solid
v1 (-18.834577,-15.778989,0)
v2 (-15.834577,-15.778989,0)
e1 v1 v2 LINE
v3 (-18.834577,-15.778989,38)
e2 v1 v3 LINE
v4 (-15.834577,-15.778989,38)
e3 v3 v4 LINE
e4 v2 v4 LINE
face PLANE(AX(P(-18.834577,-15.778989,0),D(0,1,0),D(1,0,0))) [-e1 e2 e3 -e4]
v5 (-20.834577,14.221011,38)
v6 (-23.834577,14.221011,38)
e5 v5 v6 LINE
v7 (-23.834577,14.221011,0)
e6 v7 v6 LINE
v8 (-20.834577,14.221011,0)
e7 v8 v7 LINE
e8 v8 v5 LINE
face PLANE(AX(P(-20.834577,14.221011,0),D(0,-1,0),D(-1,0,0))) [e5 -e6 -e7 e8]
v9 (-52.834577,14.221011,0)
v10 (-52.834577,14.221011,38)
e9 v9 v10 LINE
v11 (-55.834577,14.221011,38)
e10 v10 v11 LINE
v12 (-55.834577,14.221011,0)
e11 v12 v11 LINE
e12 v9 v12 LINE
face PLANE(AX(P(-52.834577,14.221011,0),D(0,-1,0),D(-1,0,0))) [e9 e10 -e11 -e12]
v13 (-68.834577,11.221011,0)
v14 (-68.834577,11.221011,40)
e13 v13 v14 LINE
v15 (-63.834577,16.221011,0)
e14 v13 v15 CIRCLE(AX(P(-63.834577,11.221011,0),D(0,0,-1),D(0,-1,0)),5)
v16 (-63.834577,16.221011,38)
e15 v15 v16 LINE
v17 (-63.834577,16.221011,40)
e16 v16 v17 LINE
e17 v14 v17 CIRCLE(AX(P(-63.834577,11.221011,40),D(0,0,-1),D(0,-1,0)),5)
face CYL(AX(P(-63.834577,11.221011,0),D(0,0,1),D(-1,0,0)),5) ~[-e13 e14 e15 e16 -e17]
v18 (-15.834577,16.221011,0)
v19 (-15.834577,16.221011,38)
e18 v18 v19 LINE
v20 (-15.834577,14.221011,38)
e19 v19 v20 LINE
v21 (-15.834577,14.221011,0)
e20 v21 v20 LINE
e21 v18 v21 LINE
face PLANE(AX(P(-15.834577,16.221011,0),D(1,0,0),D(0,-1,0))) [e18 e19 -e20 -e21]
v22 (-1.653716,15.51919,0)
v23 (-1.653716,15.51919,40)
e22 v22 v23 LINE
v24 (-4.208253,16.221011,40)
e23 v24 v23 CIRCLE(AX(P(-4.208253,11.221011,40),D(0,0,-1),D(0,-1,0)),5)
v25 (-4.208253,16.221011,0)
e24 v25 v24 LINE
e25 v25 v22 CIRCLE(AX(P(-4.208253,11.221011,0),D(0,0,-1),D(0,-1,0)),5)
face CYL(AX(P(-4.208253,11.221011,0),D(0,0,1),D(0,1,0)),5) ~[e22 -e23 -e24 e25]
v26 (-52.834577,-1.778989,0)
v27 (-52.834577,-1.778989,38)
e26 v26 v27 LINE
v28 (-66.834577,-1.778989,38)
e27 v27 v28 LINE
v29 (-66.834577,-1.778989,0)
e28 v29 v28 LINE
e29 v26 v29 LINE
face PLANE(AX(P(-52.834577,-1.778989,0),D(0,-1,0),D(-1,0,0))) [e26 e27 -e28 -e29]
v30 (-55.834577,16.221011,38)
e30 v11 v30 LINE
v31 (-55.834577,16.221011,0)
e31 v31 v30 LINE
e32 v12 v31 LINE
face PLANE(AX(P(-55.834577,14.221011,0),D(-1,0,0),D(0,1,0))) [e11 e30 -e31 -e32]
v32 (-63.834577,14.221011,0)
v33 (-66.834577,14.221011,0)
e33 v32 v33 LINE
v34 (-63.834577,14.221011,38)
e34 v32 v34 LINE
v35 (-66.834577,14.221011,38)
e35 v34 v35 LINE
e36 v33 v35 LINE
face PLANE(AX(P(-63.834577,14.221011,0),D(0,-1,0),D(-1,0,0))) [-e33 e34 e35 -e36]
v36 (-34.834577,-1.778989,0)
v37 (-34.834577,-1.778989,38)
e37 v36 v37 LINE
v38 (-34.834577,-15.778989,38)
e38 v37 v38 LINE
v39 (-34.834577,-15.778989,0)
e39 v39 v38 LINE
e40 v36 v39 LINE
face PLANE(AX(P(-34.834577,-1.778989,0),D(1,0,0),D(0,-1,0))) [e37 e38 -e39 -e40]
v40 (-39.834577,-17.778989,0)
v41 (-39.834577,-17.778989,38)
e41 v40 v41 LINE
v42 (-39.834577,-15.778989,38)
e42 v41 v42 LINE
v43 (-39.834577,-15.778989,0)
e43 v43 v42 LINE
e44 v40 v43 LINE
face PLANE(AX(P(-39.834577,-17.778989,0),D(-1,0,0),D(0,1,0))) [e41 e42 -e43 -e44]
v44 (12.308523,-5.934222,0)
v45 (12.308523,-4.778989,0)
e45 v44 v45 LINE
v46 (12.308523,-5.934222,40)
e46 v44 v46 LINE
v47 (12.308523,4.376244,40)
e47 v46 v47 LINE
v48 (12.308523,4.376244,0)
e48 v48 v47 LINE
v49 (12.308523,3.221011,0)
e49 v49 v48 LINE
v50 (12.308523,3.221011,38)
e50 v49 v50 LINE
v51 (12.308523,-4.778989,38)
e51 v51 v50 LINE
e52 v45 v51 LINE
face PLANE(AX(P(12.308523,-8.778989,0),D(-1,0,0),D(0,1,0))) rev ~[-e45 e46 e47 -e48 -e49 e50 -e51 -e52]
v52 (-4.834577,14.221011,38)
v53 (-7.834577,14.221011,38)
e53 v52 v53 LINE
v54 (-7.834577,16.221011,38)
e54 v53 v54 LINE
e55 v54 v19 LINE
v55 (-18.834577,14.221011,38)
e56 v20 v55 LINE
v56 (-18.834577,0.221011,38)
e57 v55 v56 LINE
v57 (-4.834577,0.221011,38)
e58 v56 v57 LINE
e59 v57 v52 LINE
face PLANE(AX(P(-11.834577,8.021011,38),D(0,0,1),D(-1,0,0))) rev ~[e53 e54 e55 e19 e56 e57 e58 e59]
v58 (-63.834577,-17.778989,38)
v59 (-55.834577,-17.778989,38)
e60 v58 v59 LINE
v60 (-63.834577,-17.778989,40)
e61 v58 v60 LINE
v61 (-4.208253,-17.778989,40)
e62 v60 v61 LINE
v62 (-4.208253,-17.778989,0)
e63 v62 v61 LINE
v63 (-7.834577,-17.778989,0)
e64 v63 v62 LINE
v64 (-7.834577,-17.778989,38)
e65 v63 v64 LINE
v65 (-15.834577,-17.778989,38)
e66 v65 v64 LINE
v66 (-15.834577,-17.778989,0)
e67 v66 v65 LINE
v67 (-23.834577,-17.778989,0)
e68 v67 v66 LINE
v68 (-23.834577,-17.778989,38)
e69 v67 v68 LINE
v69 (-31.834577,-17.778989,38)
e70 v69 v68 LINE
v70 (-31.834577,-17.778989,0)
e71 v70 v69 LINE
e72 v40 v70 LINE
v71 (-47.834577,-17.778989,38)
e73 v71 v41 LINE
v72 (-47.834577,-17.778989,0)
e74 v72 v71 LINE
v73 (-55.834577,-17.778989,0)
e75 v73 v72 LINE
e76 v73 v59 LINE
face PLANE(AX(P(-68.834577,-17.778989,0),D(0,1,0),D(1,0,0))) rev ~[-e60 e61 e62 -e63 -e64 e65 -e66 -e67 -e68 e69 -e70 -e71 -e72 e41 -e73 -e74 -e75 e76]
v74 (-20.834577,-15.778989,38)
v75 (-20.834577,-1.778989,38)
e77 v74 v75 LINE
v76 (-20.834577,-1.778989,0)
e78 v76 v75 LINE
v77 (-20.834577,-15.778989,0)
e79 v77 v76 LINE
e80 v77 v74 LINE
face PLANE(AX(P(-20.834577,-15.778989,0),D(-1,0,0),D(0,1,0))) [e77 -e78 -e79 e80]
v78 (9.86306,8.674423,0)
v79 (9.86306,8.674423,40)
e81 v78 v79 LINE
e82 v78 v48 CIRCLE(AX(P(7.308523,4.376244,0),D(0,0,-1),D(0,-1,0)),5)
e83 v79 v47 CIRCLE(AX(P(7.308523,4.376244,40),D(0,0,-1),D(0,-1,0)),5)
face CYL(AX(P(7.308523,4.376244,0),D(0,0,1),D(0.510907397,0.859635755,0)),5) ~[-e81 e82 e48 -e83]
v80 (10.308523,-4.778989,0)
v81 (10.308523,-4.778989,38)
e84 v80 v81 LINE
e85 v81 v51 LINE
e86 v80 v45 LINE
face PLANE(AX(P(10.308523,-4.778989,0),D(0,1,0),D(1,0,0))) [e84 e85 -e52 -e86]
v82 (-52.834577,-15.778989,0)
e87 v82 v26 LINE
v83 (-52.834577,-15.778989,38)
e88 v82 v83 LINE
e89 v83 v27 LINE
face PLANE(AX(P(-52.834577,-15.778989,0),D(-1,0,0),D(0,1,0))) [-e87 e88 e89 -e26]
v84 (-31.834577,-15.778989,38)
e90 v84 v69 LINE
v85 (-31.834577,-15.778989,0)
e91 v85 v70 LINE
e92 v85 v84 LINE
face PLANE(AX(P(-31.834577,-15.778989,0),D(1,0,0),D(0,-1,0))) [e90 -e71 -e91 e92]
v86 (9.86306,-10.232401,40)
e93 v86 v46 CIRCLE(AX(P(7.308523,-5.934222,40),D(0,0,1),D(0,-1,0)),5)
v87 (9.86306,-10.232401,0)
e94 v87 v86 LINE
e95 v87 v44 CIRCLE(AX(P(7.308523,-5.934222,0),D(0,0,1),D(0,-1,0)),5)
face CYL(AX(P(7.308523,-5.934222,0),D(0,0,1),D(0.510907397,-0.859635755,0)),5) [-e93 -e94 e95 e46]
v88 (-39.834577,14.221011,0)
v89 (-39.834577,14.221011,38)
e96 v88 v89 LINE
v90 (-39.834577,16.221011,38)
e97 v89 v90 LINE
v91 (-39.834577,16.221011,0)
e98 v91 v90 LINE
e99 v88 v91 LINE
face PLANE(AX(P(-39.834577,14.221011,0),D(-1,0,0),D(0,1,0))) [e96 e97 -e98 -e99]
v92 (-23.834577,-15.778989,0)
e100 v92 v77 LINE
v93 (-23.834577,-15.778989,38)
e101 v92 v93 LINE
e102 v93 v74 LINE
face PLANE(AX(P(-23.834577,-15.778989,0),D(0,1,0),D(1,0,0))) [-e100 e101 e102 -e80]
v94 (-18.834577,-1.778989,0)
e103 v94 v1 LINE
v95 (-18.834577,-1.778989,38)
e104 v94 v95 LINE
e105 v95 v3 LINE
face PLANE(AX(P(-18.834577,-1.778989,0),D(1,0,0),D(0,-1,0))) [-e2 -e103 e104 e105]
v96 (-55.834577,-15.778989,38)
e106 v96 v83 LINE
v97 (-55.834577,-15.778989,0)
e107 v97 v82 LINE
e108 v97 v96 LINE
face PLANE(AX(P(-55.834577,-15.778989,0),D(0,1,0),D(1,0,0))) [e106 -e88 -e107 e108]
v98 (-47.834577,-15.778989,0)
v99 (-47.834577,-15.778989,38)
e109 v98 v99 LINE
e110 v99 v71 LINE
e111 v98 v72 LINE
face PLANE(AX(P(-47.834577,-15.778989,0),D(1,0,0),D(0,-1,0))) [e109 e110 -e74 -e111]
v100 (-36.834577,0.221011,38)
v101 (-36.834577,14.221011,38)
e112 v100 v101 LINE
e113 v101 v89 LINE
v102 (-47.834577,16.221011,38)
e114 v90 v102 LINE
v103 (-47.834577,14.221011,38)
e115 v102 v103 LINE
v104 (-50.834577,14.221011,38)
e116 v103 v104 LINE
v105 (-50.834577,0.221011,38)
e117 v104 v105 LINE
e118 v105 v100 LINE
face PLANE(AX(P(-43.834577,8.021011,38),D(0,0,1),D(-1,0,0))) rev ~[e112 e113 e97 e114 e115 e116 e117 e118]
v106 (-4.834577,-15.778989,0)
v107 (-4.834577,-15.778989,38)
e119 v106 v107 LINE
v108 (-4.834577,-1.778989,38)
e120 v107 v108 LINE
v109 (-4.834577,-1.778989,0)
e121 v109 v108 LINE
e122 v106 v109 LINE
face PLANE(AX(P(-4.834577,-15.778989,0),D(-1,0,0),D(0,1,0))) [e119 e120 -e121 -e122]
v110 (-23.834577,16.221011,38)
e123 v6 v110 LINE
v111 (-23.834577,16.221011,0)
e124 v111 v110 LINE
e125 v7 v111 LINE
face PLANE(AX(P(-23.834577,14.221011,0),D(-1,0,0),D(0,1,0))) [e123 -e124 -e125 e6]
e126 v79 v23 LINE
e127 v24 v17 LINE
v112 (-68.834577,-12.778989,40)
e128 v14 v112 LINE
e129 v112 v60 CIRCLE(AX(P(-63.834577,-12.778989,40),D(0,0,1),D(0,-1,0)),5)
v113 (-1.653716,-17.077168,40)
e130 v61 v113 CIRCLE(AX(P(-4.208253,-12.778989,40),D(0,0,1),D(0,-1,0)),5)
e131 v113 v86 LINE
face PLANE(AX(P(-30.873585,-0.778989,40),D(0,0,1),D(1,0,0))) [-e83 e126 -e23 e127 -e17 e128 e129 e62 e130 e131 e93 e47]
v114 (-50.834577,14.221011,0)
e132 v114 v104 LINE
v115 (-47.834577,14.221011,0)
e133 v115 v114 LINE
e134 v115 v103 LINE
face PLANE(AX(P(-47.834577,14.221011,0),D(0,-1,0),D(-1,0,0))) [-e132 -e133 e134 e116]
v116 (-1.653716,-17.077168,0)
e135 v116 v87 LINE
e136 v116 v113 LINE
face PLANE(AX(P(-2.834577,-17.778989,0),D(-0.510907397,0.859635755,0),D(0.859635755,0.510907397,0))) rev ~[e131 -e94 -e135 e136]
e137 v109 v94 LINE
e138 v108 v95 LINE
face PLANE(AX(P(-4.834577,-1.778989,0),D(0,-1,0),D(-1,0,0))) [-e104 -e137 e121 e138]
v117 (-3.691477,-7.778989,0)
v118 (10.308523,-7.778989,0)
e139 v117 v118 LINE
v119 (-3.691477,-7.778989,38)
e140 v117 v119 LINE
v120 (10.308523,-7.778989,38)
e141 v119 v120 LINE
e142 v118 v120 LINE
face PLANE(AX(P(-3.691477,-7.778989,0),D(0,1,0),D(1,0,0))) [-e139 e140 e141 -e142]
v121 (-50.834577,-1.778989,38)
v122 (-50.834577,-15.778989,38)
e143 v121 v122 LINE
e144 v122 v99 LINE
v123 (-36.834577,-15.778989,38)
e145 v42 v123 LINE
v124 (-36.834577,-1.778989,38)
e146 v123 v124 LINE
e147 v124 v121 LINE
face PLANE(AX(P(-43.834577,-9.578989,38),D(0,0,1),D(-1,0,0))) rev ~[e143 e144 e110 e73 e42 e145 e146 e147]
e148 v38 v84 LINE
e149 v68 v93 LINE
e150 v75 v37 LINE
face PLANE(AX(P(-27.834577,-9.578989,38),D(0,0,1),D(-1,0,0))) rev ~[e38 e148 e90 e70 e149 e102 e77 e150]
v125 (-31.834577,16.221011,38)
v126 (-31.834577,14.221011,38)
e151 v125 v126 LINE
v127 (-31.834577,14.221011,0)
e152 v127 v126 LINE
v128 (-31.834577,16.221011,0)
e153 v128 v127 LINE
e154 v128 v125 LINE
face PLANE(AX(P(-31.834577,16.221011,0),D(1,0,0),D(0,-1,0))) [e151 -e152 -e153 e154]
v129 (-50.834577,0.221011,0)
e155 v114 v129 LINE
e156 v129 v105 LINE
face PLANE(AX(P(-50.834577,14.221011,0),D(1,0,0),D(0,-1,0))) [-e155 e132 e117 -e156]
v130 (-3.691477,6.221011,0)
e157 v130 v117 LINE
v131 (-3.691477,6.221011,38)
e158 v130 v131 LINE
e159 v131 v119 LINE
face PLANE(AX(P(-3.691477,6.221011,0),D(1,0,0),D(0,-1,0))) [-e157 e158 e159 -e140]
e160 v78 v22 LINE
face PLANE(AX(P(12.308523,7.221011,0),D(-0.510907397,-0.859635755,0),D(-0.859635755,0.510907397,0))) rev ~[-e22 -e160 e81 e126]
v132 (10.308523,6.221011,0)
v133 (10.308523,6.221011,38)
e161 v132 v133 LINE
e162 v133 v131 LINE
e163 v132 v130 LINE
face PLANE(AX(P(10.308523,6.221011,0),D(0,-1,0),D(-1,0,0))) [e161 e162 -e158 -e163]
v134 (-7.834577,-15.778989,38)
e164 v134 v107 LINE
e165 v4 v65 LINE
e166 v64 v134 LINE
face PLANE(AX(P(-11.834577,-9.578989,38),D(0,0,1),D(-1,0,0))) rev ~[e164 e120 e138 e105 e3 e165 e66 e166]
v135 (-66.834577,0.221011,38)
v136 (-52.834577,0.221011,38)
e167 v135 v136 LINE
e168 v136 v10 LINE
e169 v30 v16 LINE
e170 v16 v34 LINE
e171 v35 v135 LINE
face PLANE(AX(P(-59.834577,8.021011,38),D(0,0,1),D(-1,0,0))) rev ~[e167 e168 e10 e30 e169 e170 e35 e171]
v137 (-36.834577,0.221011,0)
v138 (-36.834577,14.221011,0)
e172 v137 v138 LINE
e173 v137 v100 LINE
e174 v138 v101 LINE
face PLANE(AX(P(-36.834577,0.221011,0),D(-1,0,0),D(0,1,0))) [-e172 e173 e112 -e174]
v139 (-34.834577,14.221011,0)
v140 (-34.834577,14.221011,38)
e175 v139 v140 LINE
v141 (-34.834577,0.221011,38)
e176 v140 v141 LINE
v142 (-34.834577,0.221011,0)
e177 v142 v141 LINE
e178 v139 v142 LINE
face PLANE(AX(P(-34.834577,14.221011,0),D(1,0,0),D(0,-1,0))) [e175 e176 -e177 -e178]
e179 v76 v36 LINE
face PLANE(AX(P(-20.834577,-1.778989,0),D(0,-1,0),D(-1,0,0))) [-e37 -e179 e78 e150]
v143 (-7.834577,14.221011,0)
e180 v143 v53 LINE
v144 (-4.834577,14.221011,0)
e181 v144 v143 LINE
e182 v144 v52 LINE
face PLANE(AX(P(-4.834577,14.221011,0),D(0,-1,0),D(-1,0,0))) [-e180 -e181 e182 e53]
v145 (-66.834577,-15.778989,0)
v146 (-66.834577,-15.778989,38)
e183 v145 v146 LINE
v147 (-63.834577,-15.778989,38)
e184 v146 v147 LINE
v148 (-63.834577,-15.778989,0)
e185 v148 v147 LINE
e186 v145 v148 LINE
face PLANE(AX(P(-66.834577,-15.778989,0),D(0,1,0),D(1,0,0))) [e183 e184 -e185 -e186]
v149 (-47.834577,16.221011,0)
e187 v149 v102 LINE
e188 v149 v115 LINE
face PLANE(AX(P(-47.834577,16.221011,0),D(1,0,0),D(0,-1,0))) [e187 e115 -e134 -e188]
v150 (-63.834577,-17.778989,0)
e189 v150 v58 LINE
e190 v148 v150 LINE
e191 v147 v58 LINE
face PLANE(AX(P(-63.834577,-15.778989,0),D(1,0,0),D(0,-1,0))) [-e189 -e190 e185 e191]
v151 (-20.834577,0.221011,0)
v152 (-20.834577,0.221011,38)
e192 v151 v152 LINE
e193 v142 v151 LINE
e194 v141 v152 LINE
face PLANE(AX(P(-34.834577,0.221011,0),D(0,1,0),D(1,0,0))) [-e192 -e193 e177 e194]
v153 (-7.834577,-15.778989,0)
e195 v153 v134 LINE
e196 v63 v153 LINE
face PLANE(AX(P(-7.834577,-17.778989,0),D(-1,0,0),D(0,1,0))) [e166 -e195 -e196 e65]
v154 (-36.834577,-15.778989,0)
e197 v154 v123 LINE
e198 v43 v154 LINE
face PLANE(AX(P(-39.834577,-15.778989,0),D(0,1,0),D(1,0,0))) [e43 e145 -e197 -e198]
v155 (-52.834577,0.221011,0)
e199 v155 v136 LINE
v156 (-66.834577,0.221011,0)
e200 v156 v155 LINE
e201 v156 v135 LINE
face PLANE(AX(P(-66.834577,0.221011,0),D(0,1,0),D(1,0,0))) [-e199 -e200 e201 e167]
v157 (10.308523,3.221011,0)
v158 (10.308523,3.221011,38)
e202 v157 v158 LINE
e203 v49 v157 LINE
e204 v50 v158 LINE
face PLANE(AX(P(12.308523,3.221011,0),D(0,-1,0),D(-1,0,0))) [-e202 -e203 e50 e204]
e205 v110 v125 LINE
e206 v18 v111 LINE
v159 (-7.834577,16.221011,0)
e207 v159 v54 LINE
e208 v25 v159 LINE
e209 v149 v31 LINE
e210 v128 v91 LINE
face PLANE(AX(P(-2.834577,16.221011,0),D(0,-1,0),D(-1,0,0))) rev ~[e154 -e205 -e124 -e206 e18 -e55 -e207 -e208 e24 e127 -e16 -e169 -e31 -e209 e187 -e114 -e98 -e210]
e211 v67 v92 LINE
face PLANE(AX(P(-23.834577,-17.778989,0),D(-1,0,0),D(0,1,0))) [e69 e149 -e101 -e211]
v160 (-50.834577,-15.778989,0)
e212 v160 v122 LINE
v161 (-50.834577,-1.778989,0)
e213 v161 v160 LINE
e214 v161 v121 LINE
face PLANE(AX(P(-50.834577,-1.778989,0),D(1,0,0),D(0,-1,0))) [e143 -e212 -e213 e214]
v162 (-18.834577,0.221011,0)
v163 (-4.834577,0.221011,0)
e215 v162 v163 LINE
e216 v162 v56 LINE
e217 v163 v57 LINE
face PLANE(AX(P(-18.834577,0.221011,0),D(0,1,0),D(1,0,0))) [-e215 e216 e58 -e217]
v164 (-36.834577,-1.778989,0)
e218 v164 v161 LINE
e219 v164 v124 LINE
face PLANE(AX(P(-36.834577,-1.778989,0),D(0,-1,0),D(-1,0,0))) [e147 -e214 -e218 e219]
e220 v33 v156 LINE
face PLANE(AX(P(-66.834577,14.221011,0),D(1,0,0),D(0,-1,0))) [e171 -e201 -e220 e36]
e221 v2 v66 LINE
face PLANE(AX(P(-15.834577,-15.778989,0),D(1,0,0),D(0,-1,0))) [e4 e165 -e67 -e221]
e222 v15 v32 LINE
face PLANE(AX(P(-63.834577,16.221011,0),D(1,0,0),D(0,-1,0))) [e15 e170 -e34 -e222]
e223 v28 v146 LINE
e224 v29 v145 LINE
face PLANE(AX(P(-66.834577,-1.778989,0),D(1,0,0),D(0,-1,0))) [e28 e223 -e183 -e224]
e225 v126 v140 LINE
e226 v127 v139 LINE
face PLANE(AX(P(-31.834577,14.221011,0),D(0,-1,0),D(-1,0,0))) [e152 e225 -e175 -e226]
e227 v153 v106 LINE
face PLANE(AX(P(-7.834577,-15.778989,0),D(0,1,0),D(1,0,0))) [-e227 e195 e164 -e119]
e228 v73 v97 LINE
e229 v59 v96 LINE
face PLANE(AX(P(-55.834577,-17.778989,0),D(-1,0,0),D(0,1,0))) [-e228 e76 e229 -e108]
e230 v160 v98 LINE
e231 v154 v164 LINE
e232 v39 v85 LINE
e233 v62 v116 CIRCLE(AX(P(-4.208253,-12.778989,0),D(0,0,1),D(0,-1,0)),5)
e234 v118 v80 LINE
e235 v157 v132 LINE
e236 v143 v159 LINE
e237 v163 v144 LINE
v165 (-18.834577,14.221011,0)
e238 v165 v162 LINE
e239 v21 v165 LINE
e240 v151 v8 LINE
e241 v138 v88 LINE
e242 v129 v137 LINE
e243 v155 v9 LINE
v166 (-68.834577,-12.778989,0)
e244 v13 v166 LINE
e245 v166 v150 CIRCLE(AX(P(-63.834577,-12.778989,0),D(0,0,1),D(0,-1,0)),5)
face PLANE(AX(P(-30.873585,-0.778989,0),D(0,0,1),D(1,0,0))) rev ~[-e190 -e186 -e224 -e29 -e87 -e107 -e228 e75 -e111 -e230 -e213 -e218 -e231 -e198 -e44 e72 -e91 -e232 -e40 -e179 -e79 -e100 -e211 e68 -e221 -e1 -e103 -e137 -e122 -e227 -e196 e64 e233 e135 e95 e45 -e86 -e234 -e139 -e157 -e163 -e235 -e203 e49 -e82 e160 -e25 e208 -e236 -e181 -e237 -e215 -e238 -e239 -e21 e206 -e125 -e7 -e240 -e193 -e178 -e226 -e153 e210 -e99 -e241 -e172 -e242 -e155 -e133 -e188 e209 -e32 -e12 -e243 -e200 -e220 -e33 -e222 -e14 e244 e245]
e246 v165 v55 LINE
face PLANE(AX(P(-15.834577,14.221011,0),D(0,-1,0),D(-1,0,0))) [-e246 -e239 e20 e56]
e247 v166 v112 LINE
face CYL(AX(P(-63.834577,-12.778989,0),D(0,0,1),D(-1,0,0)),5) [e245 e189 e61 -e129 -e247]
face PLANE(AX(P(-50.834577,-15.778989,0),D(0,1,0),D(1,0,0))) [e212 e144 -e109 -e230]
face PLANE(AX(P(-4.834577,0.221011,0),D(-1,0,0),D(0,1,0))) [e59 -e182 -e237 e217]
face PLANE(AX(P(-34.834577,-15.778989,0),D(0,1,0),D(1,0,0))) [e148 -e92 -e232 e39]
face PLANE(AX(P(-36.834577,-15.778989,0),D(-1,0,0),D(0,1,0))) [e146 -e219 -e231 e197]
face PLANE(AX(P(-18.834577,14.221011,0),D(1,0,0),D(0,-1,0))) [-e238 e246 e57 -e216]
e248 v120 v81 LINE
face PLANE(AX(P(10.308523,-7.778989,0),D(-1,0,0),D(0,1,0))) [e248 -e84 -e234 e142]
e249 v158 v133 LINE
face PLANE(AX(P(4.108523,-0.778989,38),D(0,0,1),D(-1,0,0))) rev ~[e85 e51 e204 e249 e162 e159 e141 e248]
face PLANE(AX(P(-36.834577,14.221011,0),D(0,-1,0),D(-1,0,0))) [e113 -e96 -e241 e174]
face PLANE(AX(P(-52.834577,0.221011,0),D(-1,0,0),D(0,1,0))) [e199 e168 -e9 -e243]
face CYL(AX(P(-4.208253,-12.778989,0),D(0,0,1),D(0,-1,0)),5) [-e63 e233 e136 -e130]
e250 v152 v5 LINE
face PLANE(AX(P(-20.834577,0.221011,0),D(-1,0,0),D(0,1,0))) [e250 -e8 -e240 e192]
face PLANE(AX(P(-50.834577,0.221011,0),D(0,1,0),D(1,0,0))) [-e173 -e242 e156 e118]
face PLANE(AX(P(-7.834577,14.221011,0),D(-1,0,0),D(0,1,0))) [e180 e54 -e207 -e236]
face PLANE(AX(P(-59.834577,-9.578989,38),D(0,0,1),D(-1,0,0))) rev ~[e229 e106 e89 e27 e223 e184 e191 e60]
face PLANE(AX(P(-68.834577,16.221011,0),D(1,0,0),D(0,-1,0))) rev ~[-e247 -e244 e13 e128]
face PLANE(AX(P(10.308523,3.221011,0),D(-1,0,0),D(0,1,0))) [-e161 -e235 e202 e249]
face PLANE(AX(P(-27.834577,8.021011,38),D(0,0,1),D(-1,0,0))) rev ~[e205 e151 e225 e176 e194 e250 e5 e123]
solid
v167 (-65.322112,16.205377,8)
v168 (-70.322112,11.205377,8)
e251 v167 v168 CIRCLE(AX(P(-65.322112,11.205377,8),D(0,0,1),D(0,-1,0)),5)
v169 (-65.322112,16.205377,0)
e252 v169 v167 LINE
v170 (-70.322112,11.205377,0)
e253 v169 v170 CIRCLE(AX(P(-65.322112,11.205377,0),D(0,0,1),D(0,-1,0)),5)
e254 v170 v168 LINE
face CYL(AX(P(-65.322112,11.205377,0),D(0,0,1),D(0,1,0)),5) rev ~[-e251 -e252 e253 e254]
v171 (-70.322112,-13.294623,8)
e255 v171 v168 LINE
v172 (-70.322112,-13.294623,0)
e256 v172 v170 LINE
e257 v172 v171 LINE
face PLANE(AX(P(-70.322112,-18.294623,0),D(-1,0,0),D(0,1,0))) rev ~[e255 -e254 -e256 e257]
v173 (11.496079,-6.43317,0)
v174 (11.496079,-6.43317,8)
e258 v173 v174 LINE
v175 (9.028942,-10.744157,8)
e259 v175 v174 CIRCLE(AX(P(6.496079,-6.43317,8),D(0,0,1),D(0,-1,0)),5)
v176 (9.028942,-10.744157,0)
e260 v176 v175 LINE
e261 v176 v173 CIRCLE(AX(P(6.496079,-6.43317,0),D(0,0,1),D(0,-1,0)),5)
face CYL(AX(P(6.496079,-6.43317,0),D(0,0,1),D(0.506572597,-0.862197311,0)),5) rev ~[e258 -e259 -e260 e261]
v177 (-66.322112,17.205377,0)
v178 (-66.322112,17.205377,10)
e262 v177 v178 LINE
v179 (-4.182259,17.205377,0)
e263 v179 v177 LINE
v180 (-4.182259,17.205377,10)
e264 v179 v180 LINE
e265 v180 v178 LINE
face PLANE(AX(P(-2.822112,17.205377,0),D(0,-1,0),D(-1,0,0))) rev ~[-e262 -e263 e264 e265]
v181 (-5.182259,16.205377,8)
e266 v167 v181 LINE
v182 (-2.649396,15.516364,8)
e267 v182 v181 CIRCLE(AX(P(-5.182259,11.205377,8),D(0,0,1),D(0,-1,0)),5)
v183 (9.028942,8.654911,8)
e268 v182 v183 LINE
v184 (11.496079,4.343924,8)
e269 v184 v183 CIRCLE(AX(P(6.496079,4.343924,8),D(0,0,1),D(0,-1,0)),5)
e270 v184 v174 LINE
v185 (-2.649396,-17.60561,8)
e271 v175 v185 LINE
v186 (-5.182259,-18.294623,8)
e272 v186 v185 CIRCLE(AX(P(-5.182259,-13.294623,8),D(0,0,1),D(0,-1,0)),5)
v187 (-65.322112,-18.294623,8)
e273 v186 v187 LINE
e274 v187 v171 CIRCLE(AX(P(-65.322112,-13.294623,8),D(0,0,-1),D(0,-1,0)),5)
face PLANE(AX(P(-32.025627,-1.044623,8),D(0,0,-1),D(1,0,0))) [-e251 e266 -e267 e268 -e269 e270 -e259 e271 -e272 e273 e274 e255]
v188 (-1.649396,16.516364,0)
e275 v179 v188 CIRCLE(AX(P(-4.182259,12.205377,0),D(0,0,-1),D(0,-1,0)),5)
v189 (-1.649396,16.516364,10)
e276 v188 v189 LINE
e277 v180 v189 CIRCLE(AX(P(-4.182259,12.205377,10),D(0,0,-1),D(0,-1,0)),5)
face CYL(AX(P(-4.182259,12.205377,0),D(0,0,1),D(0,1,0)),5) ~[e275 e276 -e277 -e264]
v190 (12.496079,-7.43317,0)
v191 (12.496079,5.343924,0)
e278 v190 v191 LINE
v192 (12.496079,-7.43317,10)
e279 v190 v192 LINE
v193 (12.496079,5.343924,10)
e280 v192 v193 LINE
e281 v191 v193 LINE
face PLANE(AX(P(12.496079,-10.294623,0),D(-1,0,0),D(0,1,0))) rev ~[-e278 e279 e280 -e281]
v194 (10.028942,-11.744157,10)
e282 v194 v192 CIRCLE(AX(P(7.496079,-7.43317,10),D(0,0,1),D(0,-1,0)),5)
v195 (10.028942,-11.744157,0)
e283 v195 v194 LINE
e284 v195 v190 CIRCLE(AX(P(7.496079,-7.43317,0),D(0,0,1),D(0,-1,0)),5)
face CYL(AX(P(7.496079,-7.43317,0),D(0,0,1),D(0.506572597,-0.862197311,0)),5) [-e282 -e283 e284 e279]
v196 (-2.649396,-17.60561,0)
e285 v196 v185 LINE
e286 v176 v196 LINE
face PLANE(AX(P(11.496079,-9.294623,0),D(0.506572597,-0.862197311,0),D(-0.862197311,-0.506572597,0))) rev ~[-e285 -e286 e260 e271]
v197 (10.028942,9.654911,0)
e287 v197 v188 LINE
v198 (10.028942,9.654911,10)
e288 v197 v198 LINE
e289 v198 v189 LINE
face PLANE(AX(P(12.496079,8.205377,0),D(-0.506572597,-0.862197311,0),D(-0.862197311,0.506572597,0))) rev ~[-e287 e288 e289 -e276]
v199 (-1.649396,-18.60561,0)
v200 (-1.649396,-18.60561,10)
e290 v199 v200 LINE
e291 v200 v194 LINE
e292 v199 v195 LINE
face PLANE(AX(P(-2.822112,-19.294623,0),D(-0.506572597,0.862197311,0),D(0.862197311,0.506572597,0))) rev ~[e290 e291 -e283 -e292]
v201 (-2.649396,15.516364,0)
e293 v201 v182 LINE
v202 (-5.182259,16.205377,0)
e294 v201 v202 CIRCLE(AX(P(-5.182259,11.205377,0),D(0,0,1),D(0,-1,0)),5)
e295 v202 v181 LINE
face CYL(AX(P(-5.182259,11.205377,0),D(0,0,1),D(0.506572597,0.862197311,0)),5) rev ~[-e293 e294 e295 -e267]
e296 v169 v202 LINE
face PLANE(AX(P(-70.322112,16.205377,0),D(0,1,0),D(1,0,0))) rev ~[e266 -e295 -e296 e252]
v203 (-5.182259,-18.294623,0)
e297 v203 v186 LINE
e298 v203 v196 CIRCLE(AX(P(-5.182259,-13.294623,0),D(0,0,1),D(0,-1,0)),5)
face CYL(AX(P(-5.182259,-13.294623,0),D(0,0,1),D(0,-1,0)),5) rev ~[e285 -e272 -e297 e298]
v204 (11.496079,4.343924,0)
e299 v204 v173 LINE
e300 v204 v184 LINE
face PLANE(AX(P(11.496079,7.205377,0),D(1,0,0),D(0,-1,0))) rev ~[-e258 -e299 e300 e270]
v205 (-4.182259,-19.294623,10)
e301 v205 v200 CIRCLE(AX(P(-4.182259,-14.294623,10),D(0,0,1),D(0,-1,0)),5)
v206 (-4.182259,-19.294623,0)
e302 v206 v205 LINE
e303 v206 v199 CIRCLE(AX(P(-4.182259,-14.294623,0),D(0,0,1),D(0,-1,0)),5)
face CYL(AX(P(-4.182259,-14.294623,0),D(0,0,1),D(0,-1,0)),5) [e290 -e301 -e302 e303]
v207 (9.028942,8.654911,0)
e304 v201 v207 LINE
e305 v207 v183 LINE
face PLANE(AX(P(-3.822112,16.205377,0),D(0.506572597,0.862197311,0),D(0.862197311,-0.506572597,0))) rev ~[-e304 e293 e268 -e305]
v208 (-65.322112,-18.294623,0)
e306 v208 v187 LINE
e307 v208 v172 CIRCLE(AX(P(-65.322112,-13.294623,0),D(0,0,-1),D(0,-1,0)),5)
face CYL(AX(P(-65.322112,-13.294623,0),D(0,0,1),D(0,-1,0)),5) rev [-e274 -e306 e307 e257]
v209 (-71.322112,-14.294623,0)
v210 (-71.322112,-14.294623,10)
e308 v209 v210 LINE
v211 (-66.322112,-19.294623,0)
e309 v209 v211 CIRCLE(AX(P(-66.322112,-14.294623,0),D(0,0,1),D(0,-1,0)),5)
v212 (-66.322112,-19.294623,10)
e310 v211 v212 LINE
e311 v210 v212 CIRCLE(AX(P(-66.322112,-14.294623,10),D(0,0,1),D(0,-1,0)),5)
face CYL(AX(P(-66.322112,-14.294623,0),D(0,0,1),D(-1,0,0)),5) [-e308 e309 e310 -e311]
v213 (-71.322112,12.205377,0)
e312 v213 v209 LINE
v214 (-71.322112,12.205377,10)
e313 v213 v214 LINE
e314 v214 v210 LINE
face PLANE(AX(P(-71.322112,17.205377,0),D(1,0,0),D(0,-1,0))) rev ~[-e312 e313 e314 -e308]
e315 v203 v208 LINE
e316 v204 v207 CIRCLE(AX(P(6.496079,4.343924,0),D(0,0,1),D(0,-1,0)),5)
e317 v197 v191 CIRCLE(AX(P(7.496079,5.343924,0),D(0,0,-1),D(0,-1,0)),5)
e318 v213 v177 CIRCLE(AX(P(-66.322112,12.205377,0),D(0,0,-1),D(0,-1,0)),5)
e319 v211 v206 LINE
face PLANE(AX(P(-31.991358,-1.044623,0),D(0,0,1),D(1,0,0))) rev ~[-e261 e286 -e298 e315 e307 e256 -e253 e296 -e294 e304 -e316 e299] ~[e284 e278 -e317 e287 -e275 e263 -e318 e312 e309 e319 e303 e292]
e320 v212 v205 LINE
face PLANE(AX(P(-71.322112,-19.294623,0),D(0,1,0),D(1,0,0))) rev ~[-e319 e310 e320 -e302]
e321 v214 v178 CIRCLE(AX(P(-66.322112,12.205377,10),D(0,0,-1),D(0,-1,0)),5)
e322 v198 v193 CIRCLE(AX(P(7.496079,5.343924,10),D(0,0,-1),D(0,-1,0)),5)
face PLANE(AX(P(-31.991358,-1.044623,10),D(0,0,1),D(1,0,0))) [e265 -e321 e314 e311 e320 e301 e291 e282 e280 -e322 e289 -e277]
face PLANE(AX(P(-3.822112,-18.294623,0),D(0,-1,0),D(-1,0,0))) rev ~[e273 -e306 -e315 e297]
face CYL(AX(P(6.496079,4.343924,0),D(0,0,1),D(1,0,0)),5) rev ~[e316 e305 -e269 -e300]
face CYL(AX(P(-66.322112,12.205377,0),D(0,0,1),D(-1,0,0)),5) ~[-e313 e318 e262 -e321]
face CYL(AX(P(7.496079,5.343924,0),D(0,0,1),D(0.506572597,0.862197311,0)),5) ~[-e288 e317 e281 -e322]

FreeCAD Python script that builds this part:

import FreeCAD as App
import Part
import Sketcher
from FreeCAD import Vector
Q = App.Units.Quantity


def edges_at(feature, points):
    """Names of the edges that pass closest to the given points."""
    edges = feature.Shape.Edges
    near = lambda p: min(range(len(edges)), key=lambda i: edges[i].distToShape(Part.Vertex(*p))[0])
    return sorted({f"Edge{near(p) + 1}" for p in points})

doc = App.newDocument("Part")
body = doc.addObject("PartDesign::Body", "Body")

sketch1 = body.newObject("Sketcher::SketchObject", "Sketch")
sketch1.AttachmentSupport = (doc.getObject("XY_Plane"), [""])
sketch1.MapMode = "FlatFace"
sketch1.addGeometry([
    Part.LineSegment(Vector(-69, 16, 0), Vector(-69, -18, 0)),
    Part.LineSegment(Vector(-69, -18, 0), Vector(-3, -18, 0)),
    Part.LineSegment(Vector(-3, -18, 0), Vector(12, -9, 0)),
    Part.LineSegment(Vector(12, -9, 0), Vector(12, 7, 0)),
    Part.LineSegment(Vector(12, 7, 0), Vector(-3, 16, 0)),
    Part.LineSegment(Vector(-3, 16, 0), Vector(-69, 16, 0)),
], False)
sketch1.addConstraint([
    Sketcher.Constraint("Coincident", 0, 2, 1, 1),
    Sketcher.Constraint("Coincident", 1, 2, 2, 1),
    Sketcher.Constraint("Coincident", 2, 2, 3, 1),
    Sketcher.Constraint("Coincident", 3, 2, 4, 1),
    Sketcher.Constraint("Coincident", 4, 2, 5, 1),
    Sketcher.Constraint("Coincident", 5, 2, 0, 1),
    Sketcher.Constraint("Vertical", 0),
    Sketcher.Constraint("Horizontal", 1),
    Sketcher.Constraint("Vertical", 3),
    Sketcher.Constraint("Horizontal", 5),
    Sketcher.Constraint("Vertical", 1, 2, 4, 2),
    Sketcher.Constraint("Equal", 2, 4),
    Sketcher.Constraint("DistanceX", 1, 1, 1, 2, Q("66 mm")),
    Sketcher.Constraint("DistanceY", 0, 2, 0, 1, Q("34 mm")),
    Sketcher.Constraint("DistanceY", 3, 1, 3, 2, Q("16 mm")),
    Sketcher.Constraint("DistanceX", 1, 2, 2, 2, Q("15.1431 mm")),
    Sketcher.Constraint("DistanceY", 0, 2, -1, 1, Q("17.778989 mm")),
    Sketcher.Constraint("DistanceX", 0, 2, -1, 1, Q("68.834577 mm")),
])
pad1 = body.newObject("PartDesign::Pad", "Pad")
pad1.Profile = sketch1
pad1.Length = 40

sketch2 = body.newObject("Sketcher::SketchObject", "Sketch001")
sketch2.AttachmentSupport = (doc.getObject("XY_Plane"), [""])
sketch2.MapMode = "FlatFace"
sketch2.addGeometry([
    Part.LineSegment(Vector(-52.8, -1.8, 0), Vector(-52.8, -15.8, 0)),
    Part.LineSegment(Vector(-52.8, -15.8, 0), Vector(-55.8, -15.8, 0)),
    Part.LineSegment(Vector(-55.8, -15.8, 0), Vector(-55.8, -17.8, 0)),
    Part.LineSegment(Vector(-55.8, -17.8, 0), Vector(-63.8, -17.8, 0)),
    Part.LineSegment(Vector(-63.8, -17.8, 0), Vector(-63.8, -15.8, 0)),
    Part.LineSegment(Vector(-63.8, -15.8, 0), Vector(-66.8, -15.8, 0)),
    Part.LineSegment(Vector(-66.8, -15.8, 0), Vector(-66.8, -1.8, 0)),
    Part.LineSegment(Vector(-66.8, -1.8, 0), Vector(-52.8, -1.8, 0)),
    Part.LineSegment(Vector(-52.8, 0.2, 0), Vector(-66.8, 0.2, 0)),
    Part.LineSegment(Vector(-66.8, 0.2, 0), Vector(-66.8, 14.2, 0)),
    Part.LineSegment(Vector(-66.8, 14.2, 0), Vector(-63.8, 14.2, 0)),
    Part.LineSegment(Vector(-63.8, 14.2, 0), Vector(-63.8, 16.2, 0)),
    Part.LineSegment(Vector(-63.8, 16.2, 0), Vector(-55.8, 16.2, 0)),
    Part.LineSegment(Vector(-55.8, 16.2, 0), Vector(-55.8, 14.2, 0)),
    Part.LineSegment(Vector(-55.8, 14.2, 0), Vector(-52.8, 14.2, 0)),
    Part.LineSegment(Vector(-52.8, 14.2, 0), Vector(-52.8, 0.2, 0)),
    Part.LineSegment(Vector(-50.8, -1.8, 0), Vector(-36.8, -1.8, 0)),
    Part.LineSegment(Vector(-36.8, -1.8, 0), Vector(-36.8, -15.8, 0)),
    Part.LineSegment(Vector(-36.8, -15.8, 0), Vector(-39.8, -15.8, 0)),
    Part.LineSegment(Vector(-39.8, -15.8, 0), Vector(-39.8, -17.8, 0)),
    Part.LineSegment(Vector(-39.8, -17.8, 0), Vector(-47.8, -17.8, 0)),
    Part.LineSegment(Vector(-47.8, -17.8, 0), Vector(-47.8, -15.8, 0)),
    Part.LineSegment(Vector(-47.8, -15.8, 0), Vector(-50.8, -15.8, 0)),
    Part.LineSegment(Vector(-50.8, -15.8, 0), Vector(-50.8, -1.8, 0)),
    Part.LineSegment(Vector(-36.8, 14.2, 0), Vector(-36.8, 0.2, 0)),
    Part.LineSegment(Vector(-36.8, 0.2, 0), Vector(-50.8, 0.2, 0)),
    Part.LineSegment(Vector(-50.8, 0.2, 0), Vector(-50.8, 14.2, 0)),
    Part.LineSegment(Vector(-50.8, 14.2, 0), Vector(-47.8, 14.2, 0)),
    Part.LineSegment(Vector(-47.8, 14.2, 0), Vector(-47.8, 16.2, 0)),
    Part.LineSegment(Vector(-47.8, 16.2, 0), Vector(-39.8, 16.2, 0)),
    Part.LineSegment(Vector(-39.8, 16.2, 0), Vector(-39.8, 14.2, 0)),
    Part.LineSegment(Vector(-39.8, 14.2, 0), Vector(-36.8, 14.2, 0)),
    Part.LineSegment(Vector(-20.8, -1.8, 0), Vector(-20.8, -15.8, 0)),
    Part.LineSegment(Vector(-20.8, -15.8, 0), Vector(-23.8, -15.8, 0)),
    Part.LineSegment(Vector(-23.8, -15.8, 0), Vector(-23.8, -17.8, 0)),
    Part.LineSegment(Vector(-23.8, -17.8, 0), Vector(-31.8, -17.8, 0)),
    Part.LineSegment(Vector(-31.8, -17.8, 0), Vector(-31.8, -15.8, 0)),
    Part.LineSegment(Vector(-31.8, -15.8, 0), Vector(-34.8, -15.8, 0)),
    Part.LineSegment(Vector(-34.8, -15.8, 0), Vector(-34.8, -1.8, 0)),
    Part.LineSegment(Vector(-34.8, -1.8, 0), Vector(-20.8, -1.8, 0)),
    Part.LineSegment(Vector(-20.8, 14.2, 0), Vector(-20.8, 0.2, 0)),
    Part.LineSegment(Vector(-20.8, 0.2, 0), Vector(-34.8, 0.2, 0)),
    Part.LineSegment(Vector(-34.8, 0.2, 0), Vector(-34.8, 14.2, 0)),
    Part.LineSegment(Vector(-34.8, 14.2, 0), Vector(-31.8, 14.2, 0)),
    Part.LineSegment(Vector(-31.8, 14.2, 0), Vector(-31.8, 16.2, 0)),
    Part.LineSegment(Vector(-31.8, 16.2, 0), Vector(-23.8, 16.2, 0)),
    Part.LineSegment(Vector(-23.8, 16.2, 0), Vector(-23.8, 14.2, 0)),
    Part.LineSegment(Vector(-23.8, 14.2, 0), Vector(-20.8, 14.2, 0)),
    Part.LineSegment(Vector(-18.8, -1.8, 0), Vector(-4.8, -1.8, 0)),
    Part.LineSegment(Vector(-4.8, -1.8, 0), Vector(-4.8, -15.8, 0)),
    Part.LineSegment(Vector(-4.8, -15.8, 0), Vector(-7.8, -15.8, 0)),
    Part.LineSegment(Vector(-7.8, -15.8, 0), Vector(-7.8, -17.8, 0)),
    Part.LineSegment(Vector(-7.8, -17.8, 0), Vector(-15.8, -17.8, 0)),
    Part.LineSegment(Vector(-15.8, -17.8, 0), Vector(-15.8, -15.8, 0)),
    Part.LineSegment(Vector(-15.8, -15.8, 0), Vector(-18.8, -15.8, 0)),
    Part.LineSegment(Vector(-18.8, -15.8, 0), Vector(-18.8, -1.8, 0)),
    Part.LineSegment(Vector(-4.8, 14.2, 0), Vector(-4.8, 0.2, 0)),
    Part.LineSegment(Vector(-4.8, 0.2, 0), Vector(-18.8, 0.2, 0)),
    Part.LineSegment(Vector(-18.8, 0.2, 0), Vector(-18.8, 14.2, 0)),
    Part.LineSegment(Vector(-18.8, 14.2, 0), Vector(-15.8, 14.2, 0)),
    Part.LineSegment(Vector(-15.8, 14.2, 0), Vector(-15.8, 16.2, 0)),
    Part.LineSegment(Vector(-15.8, 16.2, 0), Vector(-7.8, 16.2, 0)),
    Part.LineSegment(Vector(-7.8, 16.2, 0), Vector(-7.8, 14.2, 0)),
    Part.LineSegment(Vector(-7.8, 14.2, 0), Vector(-4.8, 14.2, 0)),
    Part.LineSegment(Vector(-3.7, 6.2, 0), Vector(10.3, 6.2, 0)),
    Part.LineSegment(Vector(10.3, 6.2, 0), Vector(10.3, 3.2, 0)),
    Part.LineSegment(Vector(10.3, 3.2, 0), Vector(12.3, 3.2, 0)),
    Part.LineSegment(Vector(12.3, 3.2, 0), Vector(12.3, -4.8, 0)),
    Part.LineSegment(Vector(12.3, -4.8, 0), Vector(10.3, -4.8, 0)),
    Part.LineSegment(Vector(10.3, -4.8, 0), Vector(10.3, -7.8, 0)),
    Part.LineSegment(Vector(10.3, -7.8, 0), Vector(-3.7, -7.8, 0)),
    Part.LineSegment(Vector(-3.7, -7.8, 0), Vector(-3.7, 6.2, 0)),
], False)
sketch2.addConstraint([
    Sketcher.Constraint("Coincident", 0, 2, 1, 1),
    Sketcher.Constraint("Coincident", 1, 2, 2, 1),
    Sketcher.Constraint("Coincident", 2, 2, 3, 1),
    Sketcher.Constraint("Coincident", 3, 2, 4, 1),
    Sketcher.Constraint("Coincident", 4, 2, 5, 1),
    Sketcher.Constraint("Coincident", 5, 2, 6, 1),
    Sketcher.Constraint("Coincident", 6, 2, 7, 1),
    Sketcher.Constraint("Coincident", 7, 2, 0, 1),
    Sketcher.Constraint("Coincident", 8, 2, 9, 1),
    Sketcher.Constraint("Coincident", 9, 2, 10, 1),
    Sketcher.Constraint("Coincident", 10, 2, 11, 1),
    Sketcher.Constraint("Coincident", 11, 2, 12, 1),
    Sketcher.Constraint("Coincident", 12, 2, 13, 1),
    Sketcher.Constraint("Coincident", 13, 2, 14, 1),
    Sketcher.Constraint("Coincident", 14, 2, 15, 1),
    Sketcher.Constraint("Coincident", 15, 2, 8, 1),
    Sketcher.Constraint("Coincident", 16, 2, 17, 1),
    Sketcher.Constraint("Coincident", 17, 2, 18, 1),
    Sketcher.Constraint("Coincident", 18, 2, 19, 1),
    Sketcher.Constraint("Coincident", 19, 2, 20, 1),
    Sketcher.Constraint("Coincident", 20, 2, 21, 1),
    Sketcher.Constraint("Coincident", 21, 2, 22, 1),
    Sketcher.Constraint("Coincident", 22, 2, 23, 1),
    Sketcher.Constraint("Coincident", 23, 2, 16, 1),
    Sketcher.Constraint("Coincident", 24, 2, 25, 1),
    Sketcher.Constraint("Coincident", 25, 2, 26, 1),
    Sketcher.Constraint("Coincident", 26, 2, 27, 1),
    Sketcher.Constraint("Coincident", 27, 2, 28, 1),
    Sketcher.Constraint("Coincident", 28, 2, 29, 1),
    Sketcher.Constraint("Coincident", 29, 2, 30, 1),
    Sketcher.Constraint("Coincident", 30, 2, 31, 1),
    Sketcher.Constraint("Coincident", 31, 2, 24, 1),
    Sketcher.Constraint("Coincident", 32, 2, 33, 1),
    Sketcher.Constraint("Coincident", 33, 2, 34, 1),
    Sketcher.Constraint("Coincident", 34, 2, 35, 1),
    Sketcher.Constraint("Coincident", 35, 2, 36, 1),
    Sketcher.Constraint("Coincident", 36, 2, 37, 1),
    Sketcher.Constraint("Coincident", 37, 2, 38, 1),
    Sketcher.Constraint("Coincident", 38, 2, 39, 1),
    Sketcher.Constraint("Coincident", 39, 2, 32, 1),
    Sketcher.Constraint("Coincident", 40, 2, 41, 1),
    Sketcher.Constraint("Coincident", 41, 2, 42, 1),
    Sketcher.Constraint("Coincident", 42, 2, 43, 1),
    Sketcher.Constraint("Coincident", 43, 2, 44, 1),
    Sketcher.Constraint("Coincident", 44, 2, 45, 1),
    Sketcher.Constraint("Coincident", 45, 2, 46, 1),
    Sketcher.Constraint("Coincident", 46, 2, 47, 1),
    Sketcher.Constraint("Coincident", 47, 2, 40, 1),
    Sketcher.Constraint("Coincident", 48, 2, 49, 1),
    Sketcher.Constraint("Coincident", 49, 2, 50, 1),
    Sketcher.Constraint("Coincident", 50, 2, 51, 1),
    Sketcher.Constraint("Coincident", 51, 2, 52, 1),
    Sketcher.Constraint("Coincident", 52, 2, 53, 1),
    Sketcher.Constraint("Coincident", 53, 2, 54, 1),
    Sketcher.Constraint("Coincident", 54, 2, 55, 1),
    Sketcher.Constraint("Coincident", 55, 2, 48, 1),
    Sketcher.Constraint("Coincident", 56, 2, 57, 1),
    Sketcher.Constraint("Coincident", 57, 2, 58, 1),
    Sketcher.Constraint("Coincident", 58, 2, 59, 1),
    Sketcher.Constraint("Coincident", 59, 2, 60, 1),
    Sketcher.Constraint("Coincident", 60, 2, 61, 1),
    Sketcher.Constraint("Coincident", 61, 2, 62, 1),
    Sketcher.Constraint("Coincident", 62, 2, 63, 1),
    Sketcher.Constraint("Coincident", 63, 2, 56, 1),
    Sketcher.Constraint("Coincident", 64, 2, 65, 1),
    Sketcher.Constraint("Coincident", 65, 2, 66, 1),
    Sketcher.Constraint("Coincident", 66, 2, 67, 1),
    Sketcher.Constraint("Coincident", 67, 2, 68, 1),
    Sketcher.Constraint("Coincident", 68, 2, 69, 1),
    Sketcher.Constraint("Coincident", 69, 2, 70, 1),
    Sketcher.Constraint("Coincident", 70, 2, 71, 1),
    Sketcher.Constraint("Coincident", 71, 2, 64, 1),
    Sketcher.Constraint("Vertical", 0),
    Sketcher.Constraint("Horizontal", 1),
    Sketcher.Constraint("Vertical", 2),
    Sketcher.Constraint("Horizontal", 3),
    Sketcher.Constraint("Vertical", 4),
    Sketcher.Constraint("Horizontal", 5),
    Sketcher.Constraint("Vertical", 6),
    Sketcher.Constraint("Horizontal", 7),
    Sketcher.Constraint("Horizontal", 8),
    Sketcher.Constraint("Vertical", 9),
    Sketcher.Constraint("Horizontal", 10),
    Sketcher.Constraint("Vertical", 11),
    Sketcher.Constraint("Horizontal", 12),
    Sketcher.Constraint("Vertical", 13),
    Sketcher.Constraint("Horizontal", 14),
    Sketcher.Constraint("Vertical", 15),
    Sketcher.Constraint("Horizontal", 16),
    Sketcher.Constraint("Vertical", 17),
    Sketcher.Constraint("Horizontal", 18),
    Sketcher.Constraint("Vertical", 19),
    Sketcher.Constraint("Horizontal", 20),
    Sketcher.Constraint("Vertical", 21),
    Sketcher.Constraint("Horizontal", 22),
    Sketcher.Constraint("Vertical", 23),
    Sketcher.Constraint("Vertical", 24),
    Sketcher.Constraint("Horizontal", 25),
    Sketcher.Constraint("Vertical", 26),
    Sketcher.Constraint("Horizontal", 27),
    Sketcher.Constraint("Vertical", 28),
    Sketcher.Constraint("Horizontal", 29),
    Sketcher.Constraint("Vertical", 30),
    Sketcher.Constraint("Horizontal", 31),
    Sketcher.Constraint("Vertical", 32),
    Sketcher.Constraint("Horizontal", 33),
    Sketcher.Constraint("Vertical", 34),
    Sketcher.Constraint("Horizontal", 35),
    Sketcher.Constraint("Vertical", 36),
    Sketcher.Constraint("Horizontal", 37),
    Sketcher.Constraint("Vertical", 38),
    Sketcher.Constraint("Horizontal", 39),
    Sketcher.Constraint("Vertical", 40),
    Sketcher.Constraint("Horizontal", 41),
    Sketcher.Constraint("Vertical", 42),
    Sketcher.Constraint("Horizontal", 43),
    Sketcher.Constraint("Vertical", 44),
    Sketcher.Constraint("Horizontal", 45),
    Sketcher.Constraint("Vertical", 46),
    Sketcher.Constraint("Horizontal", 47),
    Sketcher.Constraint("Horizontal", 48),
    Sketcher.Constraint("Vertical", 49),
    Sketcher.Constraint("Horizontal", 50),
    Sketcher.Constraint("Vertical", 51),
    Sketcher.Constraint("Horizontal", 52),
    Sketcher.Constraint("Vertical", 53),
    Sketcher.Constraint("Horizontal", 54),
    Sketcher.Constraint("Vertical", 55),
    Sketcher.Constraint("Vertical", 56),
    Sketcher.Constraint("Horizontal", 57),
    Sketcher.Constraint("Vertical", 58),
    Sketcher.Constraint("Horizontal", 59),
    Sketcher.Constraint("Vertical", 60),
    Sketcher.Constraint("Horizontal", 61),
    Sketcher.Constraint("Vertical", 62),
    Sketcher.Constraint("Horizontal", 63),
    Sketcher.Constraint("Horizontal", 64),
    Sketcher.Constraint("Vertical", 65),
    Sketcher.Constraint("Horizontal", 66),
    Sketcher.Constraint("Vertical", 67),
    Sketcher.Constraint("Horizontal", 68),
    Sketcher.Constraint("Vertical", 69),
    Sketcher.Constraint("Horizontal", 70),
    Sketcher.Constraint("Vertical", 71),
    Sketcher.Constraint("Horizontal", 1, 2, 4, 2),
    Sketcher.Constraint("Horizontal", 10, 2, 13, 2),
    Sketcher.Constraint("Horizontal", 7, 2, 16, 2),
    Sketcher.Constraint("Horizontal", 5, 2, 17, 2),
    Sketcher.Constraint("Horizontal", 3, 2, 19, 2),
    Sketcher.Constraint("Horizontal", 18, 2, 21, 2),
    Sketcher.Constraint("Horizontal", 15, 2, 24, 2),
    Sketcher.Constraint("Horizontal", 14, 2, 26, 2),
    Sketcher.Constraint("Horizontal", 12, 2, 28, 2),
    Sketcher.Constraint("Horizontal", 27, 2, 30, 2),
    Sketcher.Constraint("Horizontal", 22, 2, 32, 2),
    Sketcher.Constraint("Horizontal", 20, 2, 34, 2),
    Sketcher.Constraint("Horizontal", 33, 2, 36, 2),
    Sketcher.Constraint("Horizontal", 23, 2, 38, 2),
    Sketcher.Constraint("Horizontal", 25, 2, 40, 2),
    Sketcher.Constraint("Horizontal", 31, 2, 42, 2),
    Sketcher.Constraint("Horizontal", 29, 2, 44, 2),
    Sketcher.Constraint("Horizontal", 43, 2, 46, 2),
    Sketcher.Constraint("Horizontal", 39, 2, 48, 2),
    Sketcher.Constraint("Horizontal", 37, 2, 49, 2),
    Sketcher.Constraint("Horizontal", 35, 2, 51, 2),
    Sketcher.Constraint("Horizontal", 50, 2, 53, 2),
    Sketcher.Constraint("Horizontal", 41, 2, 56, 2),
    Sketcher.Constraint("Horizontal", 47, 2, 58, 2),
    Sketcher.Constraint("Horizontal", 45, 2, 60, 2),
    Sketcher.Constraint("Horizontal", 59, 2, 62, 2),
    Sketcher.Constraint("Vertical", 6, 2, 8, 2),
    Sketcher.Constraint("Vertical", 4, 2, 10, 2),
    Sketcher.Constraint("Vertical", 2, 2, 12, 2),
    Sketcher.Constraint("Vertical", 7, 2, 14, 2),
    Sketcher.Constraint("Vertical", 17, 2, 24, 2),
    Sketcher.Constraint("Vertical", 23, 2, 25, 2),
    Sketcher.Constraint("Vertical", 21, 2, 27, 2),
    Sketcher.Constraint("Vertical", 19, 2, 29, 2),
    Sketcher.Constraint("Vertical", 39, 2, 40, 2),
    Sketcher.Constraint("Vertical", 38, 2, 41, 2),
    Sketcher.Constraint("Vertical", 36, 2, 43, 2),
    Sketcher.Constraint("Vertical", 34, 2, 45, 2),
    Sketcher.Constraint("Vertical", 49, 2, 56, 2),
    Sketcher.Constraint("Vertical", 55, 2, 57, 2),
    Sketcher.Constraint("Vertical", 53, 2, 59, 2),
    Sketcher.Constraint("Vertical", 51, 2, 61, 2),
    Sketcher.Constraint("Vertical", 65, 2, 68, 2),
    Sketcher.Constraint("Equal", 1, 5),
    Sketcher.Constraint("Equal", 8, 16),
    Sketcher.Constraint("Equal", 14, 18),
    Sketcher.Constraint("Equal", 12, 20),
    Sketcher.Constraint("Equal", 31, 33),
    Sketcher.Constraint("Equal", 29, 35),
    Sketcher.Constraint("Equal", 33, 37),
    Sketcher.Constraint("Equal", 41, 48),
    Sketcher.Constraint("Equal", 47, 50),
    Sketcher.Constraint("Equal", 45, 52),
    Sketcher.Constraint("Equal", 57, 64),
    Sketcher.Constraint("Equal", 70, 0),
    Sketcher.Constraint("Equal", 68, 2),
    Sketcher.Constraint("Equal", 6, 9),
    Sketcher.Constraint("Equal", 4, 11),
    Sketcher.Constraint("Equal", 63, 65),
    Sketcher.Constraint("Equal", 61, 67),
    Sketcher.Constraint("Equal", 65, 69),
    Sketcher.Constraint("DistanceX", 1, 2, 1, 1, Q("3 mm")),
    Sketcher.Constraint("DistanceX", 3, 2, 3, 1, Q("8 mm")),
    Sketcher.Constraint("DistanceX", 66, 1, 66, 2, Q("2 mm")),
    Sketcher.Constraint("DistanceY", 0, 2, -1, 1, Q("15.778989 mm")),
    Sketcher.Constraint("DistanceY", -1, 1, 8, 2, Q("0.221011 mm")),
    Sketcher.Constraint("DistanceY", -1, 1, 64, 2, Q("6.221011 mm")),
    Sketcher.Constraint("DistanceX", 0, 2, -1, 1, Q("52.834577 mm")),
    Sketcher.Constraint("DistanceX", 16, 2, -1, 1, Q("36.834577 mm")),
    Sketcher.Constraint("DistanceX", 32, 2, -1, 1, Q("20.834577 mm")),
    Sketcher.Constraint("DistanceX", 48, 2, -1, 1, Q("4.834577 mm")),
    Sketcher.Constraint("DistanceX", -1, 1, 64, 2, Q("10.308523 mm")),
])
pocket1 = body.newObject("PartDesign::Pocket", "Pocket")
pocket1.Profile = sketch2
pocket1.Length = 38
pocket1.Reversed = True
doc.recompute()

fillet = body.newObject("PartDesign::Fillet", "Fillet")
fillet.Base = (pocket1, edges_at(pocket1, [
    (12.309, 7.221, 20),
    (-2.835, 16.221, 20),
    (-68.835, 16.221, 20),
    (12.309, -8.779, 20),
    (-2.835, -17.779, 20),
    (-68.835, -17.779, 20),
]))
fillet.Radius = 5
body2 = doc.addObject("PartDesign::Body", "Body001")

sketch3 = body2.newObject("Sketcher::SketchObject", "Sketch002")
sketch3.AttachmentSupport = (doc.getObject("XY_Plane001"), [""])
sketch3.MapMode = "FlatFace"
sketch3.addGeometry([
    Part.LineSegment(Vector(-71, 17, 0), Vector(-71, -19, 0)),
    Part.LineSegment(Vector(-71, -19, 0), Vector(-3, -19, 0)),
    Part.LineSegment(Vector(-3, -19, 0), Vector(12, -10, 0)),
    Part.LineSegment(Vector(12, -10, 0), Vector(12, 8, 0)),
    Part.LineSegment(Vector(12, 8, 0), Vector(-3, 17, 0)),
    Part.LineSegment(Vector(-3, 17, 0), Vector(-71, 17, 0)),
], False)
sketch3.addConstraint([
    Sketcher.Constraint("Coincident", 0, 2, 1, 1),
    Sketcher.Constraint("Coincident", 1, 2, 2, 1),
    Sketcher.Constraint("Coincident", 2, 2, 3, 1),
    Sketcher.Constraint("Coincident", 3, 2, 4, 1),
    Sketcher.Constraint("Coincident", 4, 2, 5, 1),
    Sketcher.Constraint("Coincident", 5, 2, 0, 1),
    Sketcher.Constraint("Vertical", 0),
    Sketcher.Constraint("Horizontal", 1),
    Sketcher.Constraint("Vertical", 3),
    Sketcher.Constraint("Horizontal", 5),
    Sketcher.Constraint("Vertical", 1, 2, 4, 2),
    Sketcher.Constraint("Equal", 2, 4),
    Sketcher.Constraint("DistanceX", 1, 1, 1, 2, Q("68.5 mm")),
    Sketcher.Constraint("DistanceY", 0, 2, 0, 1, Q("36.5 mm")),
    Sketcher.Constraint("DistanceY", 3, 1, 3, 2, Q("18.5 mm")),
    Sketcher.Constraint("DistanceX", -1, 1, 2, 2, Q("12.496079 mm")),
    Sketcher.Constraint("DistanceX", 1, 2, 2, 2, Q("15.318191 mm")),
    Sketcher.Constraint("DistanceY", 0, 2, -1, 1, Q("19.294623 mm")),
])
pad2 = body2.newObject("PartDesign::Pad", "Pad001")
pad2.Profile = sketch3
pad2.Length = 10

sketch4 = body2.newObject("Sketcher::SketchObject", "Sketch003")
sketch4.AttachmentSupport = (doc.getObject("XY_Plane001"), [""])
sketch4.MapMode = "FlatFace"
sketch4.addGeometry([
    Part.LineSegment(Vector(-70, -18, 0), Vector(-70, 16, 0)),
    Part.LineSegment(Vector(-70, 16, 0), Vector(-4, 16, 0)),
    Part.LineSegment(Vector(-4, 16, 0), Vector(11, 7, 0)),
    Part.LineSegment(Vector(11, 7, 0), Vector(11, -9, 0)),
    Part.LineSegment(Vector(11, -9, 0), Vector(-4, -18, 0)),
    Part.LineSegment(Vector(-4, -18, 0), Vector(-70, -18, 0)),
], False)
sketch4.addConstraint([
    Sketcher.Constraint("Coincident", 0, 2, 1, 1),
    Sketcher.Constraint("Coincident", 1, 2, 2, 1),
    Sketcher.Constraint("Coincident", 2, 2, 3, 1),
    Sketcher.Constraint("Coincident", 3, 2, 4, 1),
    Sketcher.Constraint("Coincident", 4, 2, 5, 1),
    Sketcher.Constraint("Coincident", 5, 2, 0, 1),
    Sketcher.Constraint("Vertical", 0),
    Sketcher.Constraint("Horizontal", 1),
    Sketcher.Constraint("Vertical", 3),
    Sketcher.Constraint("Horizontal", 5),
    Sketcher.Constraint("Vertical", 1, 2, 4, 2),
    Sketcher.Constraint("Equal", 2, 4),
    Sketcher.Constraint("DistanceX", 1, 1, 1, 2, Q("66.5 mm")),
    Sketcher.Constraint("DistanceY", 0, 1, 0, 2, Q("34.5 mm")),
    Sketcher.Constraint("DistanceY", 3, 2, 3, 1, Q("16.5 mm")),
    Sketcher.Constraint("DistanceX", -1, 1, 2, 2, Q("11.496079 mm")),
    Sketcher.Constraint("DistanceX", 1, 2, 2, 2, Q("15.318191 mm")),
    Sketcher.Constraint("DistanceY", -1, 1, 0, 2, Q("16.205377 mm")),
])
pocket2 = body2.newObject("PartDesign::Pocket", "Pocket001")
pocket2.Profile = sketch4
pocket2.Length = 8
pocket2.Reversed = True
doc.recompute()

fillet2 = body2.newObject("PartDesign::Fillet", "Fillet001")
fillet2.Base = (pocket2, edges_at(pocket2, [
    (11.496, -9.295, 4),
    (11.496, 7.205, 4),
    (-3.822, 16.205, 4),
    (-3.822, -18.295, 4),
    (-70.322, -18.295, 4),
    (-70.322, 16.205, 4),
]))
fillet2.Radius = 5
doc.recompute()

fillet3 = body2.newObject("PartDesign::Fillet", "Fillet002")
fillet3.Base = (fillet2, edges_at(fillet2, [
    (-71.322, 17.205, 5),
    (-71.322, -19.295, 5),
    (-2.822, 17.205, 5),
    (12.496, 8.205, 5),
    (12.496, -10.295, 5),
    (-2.822, -19.295, 5),
]))
fillet3.Radius = 5

doc.recompute()
